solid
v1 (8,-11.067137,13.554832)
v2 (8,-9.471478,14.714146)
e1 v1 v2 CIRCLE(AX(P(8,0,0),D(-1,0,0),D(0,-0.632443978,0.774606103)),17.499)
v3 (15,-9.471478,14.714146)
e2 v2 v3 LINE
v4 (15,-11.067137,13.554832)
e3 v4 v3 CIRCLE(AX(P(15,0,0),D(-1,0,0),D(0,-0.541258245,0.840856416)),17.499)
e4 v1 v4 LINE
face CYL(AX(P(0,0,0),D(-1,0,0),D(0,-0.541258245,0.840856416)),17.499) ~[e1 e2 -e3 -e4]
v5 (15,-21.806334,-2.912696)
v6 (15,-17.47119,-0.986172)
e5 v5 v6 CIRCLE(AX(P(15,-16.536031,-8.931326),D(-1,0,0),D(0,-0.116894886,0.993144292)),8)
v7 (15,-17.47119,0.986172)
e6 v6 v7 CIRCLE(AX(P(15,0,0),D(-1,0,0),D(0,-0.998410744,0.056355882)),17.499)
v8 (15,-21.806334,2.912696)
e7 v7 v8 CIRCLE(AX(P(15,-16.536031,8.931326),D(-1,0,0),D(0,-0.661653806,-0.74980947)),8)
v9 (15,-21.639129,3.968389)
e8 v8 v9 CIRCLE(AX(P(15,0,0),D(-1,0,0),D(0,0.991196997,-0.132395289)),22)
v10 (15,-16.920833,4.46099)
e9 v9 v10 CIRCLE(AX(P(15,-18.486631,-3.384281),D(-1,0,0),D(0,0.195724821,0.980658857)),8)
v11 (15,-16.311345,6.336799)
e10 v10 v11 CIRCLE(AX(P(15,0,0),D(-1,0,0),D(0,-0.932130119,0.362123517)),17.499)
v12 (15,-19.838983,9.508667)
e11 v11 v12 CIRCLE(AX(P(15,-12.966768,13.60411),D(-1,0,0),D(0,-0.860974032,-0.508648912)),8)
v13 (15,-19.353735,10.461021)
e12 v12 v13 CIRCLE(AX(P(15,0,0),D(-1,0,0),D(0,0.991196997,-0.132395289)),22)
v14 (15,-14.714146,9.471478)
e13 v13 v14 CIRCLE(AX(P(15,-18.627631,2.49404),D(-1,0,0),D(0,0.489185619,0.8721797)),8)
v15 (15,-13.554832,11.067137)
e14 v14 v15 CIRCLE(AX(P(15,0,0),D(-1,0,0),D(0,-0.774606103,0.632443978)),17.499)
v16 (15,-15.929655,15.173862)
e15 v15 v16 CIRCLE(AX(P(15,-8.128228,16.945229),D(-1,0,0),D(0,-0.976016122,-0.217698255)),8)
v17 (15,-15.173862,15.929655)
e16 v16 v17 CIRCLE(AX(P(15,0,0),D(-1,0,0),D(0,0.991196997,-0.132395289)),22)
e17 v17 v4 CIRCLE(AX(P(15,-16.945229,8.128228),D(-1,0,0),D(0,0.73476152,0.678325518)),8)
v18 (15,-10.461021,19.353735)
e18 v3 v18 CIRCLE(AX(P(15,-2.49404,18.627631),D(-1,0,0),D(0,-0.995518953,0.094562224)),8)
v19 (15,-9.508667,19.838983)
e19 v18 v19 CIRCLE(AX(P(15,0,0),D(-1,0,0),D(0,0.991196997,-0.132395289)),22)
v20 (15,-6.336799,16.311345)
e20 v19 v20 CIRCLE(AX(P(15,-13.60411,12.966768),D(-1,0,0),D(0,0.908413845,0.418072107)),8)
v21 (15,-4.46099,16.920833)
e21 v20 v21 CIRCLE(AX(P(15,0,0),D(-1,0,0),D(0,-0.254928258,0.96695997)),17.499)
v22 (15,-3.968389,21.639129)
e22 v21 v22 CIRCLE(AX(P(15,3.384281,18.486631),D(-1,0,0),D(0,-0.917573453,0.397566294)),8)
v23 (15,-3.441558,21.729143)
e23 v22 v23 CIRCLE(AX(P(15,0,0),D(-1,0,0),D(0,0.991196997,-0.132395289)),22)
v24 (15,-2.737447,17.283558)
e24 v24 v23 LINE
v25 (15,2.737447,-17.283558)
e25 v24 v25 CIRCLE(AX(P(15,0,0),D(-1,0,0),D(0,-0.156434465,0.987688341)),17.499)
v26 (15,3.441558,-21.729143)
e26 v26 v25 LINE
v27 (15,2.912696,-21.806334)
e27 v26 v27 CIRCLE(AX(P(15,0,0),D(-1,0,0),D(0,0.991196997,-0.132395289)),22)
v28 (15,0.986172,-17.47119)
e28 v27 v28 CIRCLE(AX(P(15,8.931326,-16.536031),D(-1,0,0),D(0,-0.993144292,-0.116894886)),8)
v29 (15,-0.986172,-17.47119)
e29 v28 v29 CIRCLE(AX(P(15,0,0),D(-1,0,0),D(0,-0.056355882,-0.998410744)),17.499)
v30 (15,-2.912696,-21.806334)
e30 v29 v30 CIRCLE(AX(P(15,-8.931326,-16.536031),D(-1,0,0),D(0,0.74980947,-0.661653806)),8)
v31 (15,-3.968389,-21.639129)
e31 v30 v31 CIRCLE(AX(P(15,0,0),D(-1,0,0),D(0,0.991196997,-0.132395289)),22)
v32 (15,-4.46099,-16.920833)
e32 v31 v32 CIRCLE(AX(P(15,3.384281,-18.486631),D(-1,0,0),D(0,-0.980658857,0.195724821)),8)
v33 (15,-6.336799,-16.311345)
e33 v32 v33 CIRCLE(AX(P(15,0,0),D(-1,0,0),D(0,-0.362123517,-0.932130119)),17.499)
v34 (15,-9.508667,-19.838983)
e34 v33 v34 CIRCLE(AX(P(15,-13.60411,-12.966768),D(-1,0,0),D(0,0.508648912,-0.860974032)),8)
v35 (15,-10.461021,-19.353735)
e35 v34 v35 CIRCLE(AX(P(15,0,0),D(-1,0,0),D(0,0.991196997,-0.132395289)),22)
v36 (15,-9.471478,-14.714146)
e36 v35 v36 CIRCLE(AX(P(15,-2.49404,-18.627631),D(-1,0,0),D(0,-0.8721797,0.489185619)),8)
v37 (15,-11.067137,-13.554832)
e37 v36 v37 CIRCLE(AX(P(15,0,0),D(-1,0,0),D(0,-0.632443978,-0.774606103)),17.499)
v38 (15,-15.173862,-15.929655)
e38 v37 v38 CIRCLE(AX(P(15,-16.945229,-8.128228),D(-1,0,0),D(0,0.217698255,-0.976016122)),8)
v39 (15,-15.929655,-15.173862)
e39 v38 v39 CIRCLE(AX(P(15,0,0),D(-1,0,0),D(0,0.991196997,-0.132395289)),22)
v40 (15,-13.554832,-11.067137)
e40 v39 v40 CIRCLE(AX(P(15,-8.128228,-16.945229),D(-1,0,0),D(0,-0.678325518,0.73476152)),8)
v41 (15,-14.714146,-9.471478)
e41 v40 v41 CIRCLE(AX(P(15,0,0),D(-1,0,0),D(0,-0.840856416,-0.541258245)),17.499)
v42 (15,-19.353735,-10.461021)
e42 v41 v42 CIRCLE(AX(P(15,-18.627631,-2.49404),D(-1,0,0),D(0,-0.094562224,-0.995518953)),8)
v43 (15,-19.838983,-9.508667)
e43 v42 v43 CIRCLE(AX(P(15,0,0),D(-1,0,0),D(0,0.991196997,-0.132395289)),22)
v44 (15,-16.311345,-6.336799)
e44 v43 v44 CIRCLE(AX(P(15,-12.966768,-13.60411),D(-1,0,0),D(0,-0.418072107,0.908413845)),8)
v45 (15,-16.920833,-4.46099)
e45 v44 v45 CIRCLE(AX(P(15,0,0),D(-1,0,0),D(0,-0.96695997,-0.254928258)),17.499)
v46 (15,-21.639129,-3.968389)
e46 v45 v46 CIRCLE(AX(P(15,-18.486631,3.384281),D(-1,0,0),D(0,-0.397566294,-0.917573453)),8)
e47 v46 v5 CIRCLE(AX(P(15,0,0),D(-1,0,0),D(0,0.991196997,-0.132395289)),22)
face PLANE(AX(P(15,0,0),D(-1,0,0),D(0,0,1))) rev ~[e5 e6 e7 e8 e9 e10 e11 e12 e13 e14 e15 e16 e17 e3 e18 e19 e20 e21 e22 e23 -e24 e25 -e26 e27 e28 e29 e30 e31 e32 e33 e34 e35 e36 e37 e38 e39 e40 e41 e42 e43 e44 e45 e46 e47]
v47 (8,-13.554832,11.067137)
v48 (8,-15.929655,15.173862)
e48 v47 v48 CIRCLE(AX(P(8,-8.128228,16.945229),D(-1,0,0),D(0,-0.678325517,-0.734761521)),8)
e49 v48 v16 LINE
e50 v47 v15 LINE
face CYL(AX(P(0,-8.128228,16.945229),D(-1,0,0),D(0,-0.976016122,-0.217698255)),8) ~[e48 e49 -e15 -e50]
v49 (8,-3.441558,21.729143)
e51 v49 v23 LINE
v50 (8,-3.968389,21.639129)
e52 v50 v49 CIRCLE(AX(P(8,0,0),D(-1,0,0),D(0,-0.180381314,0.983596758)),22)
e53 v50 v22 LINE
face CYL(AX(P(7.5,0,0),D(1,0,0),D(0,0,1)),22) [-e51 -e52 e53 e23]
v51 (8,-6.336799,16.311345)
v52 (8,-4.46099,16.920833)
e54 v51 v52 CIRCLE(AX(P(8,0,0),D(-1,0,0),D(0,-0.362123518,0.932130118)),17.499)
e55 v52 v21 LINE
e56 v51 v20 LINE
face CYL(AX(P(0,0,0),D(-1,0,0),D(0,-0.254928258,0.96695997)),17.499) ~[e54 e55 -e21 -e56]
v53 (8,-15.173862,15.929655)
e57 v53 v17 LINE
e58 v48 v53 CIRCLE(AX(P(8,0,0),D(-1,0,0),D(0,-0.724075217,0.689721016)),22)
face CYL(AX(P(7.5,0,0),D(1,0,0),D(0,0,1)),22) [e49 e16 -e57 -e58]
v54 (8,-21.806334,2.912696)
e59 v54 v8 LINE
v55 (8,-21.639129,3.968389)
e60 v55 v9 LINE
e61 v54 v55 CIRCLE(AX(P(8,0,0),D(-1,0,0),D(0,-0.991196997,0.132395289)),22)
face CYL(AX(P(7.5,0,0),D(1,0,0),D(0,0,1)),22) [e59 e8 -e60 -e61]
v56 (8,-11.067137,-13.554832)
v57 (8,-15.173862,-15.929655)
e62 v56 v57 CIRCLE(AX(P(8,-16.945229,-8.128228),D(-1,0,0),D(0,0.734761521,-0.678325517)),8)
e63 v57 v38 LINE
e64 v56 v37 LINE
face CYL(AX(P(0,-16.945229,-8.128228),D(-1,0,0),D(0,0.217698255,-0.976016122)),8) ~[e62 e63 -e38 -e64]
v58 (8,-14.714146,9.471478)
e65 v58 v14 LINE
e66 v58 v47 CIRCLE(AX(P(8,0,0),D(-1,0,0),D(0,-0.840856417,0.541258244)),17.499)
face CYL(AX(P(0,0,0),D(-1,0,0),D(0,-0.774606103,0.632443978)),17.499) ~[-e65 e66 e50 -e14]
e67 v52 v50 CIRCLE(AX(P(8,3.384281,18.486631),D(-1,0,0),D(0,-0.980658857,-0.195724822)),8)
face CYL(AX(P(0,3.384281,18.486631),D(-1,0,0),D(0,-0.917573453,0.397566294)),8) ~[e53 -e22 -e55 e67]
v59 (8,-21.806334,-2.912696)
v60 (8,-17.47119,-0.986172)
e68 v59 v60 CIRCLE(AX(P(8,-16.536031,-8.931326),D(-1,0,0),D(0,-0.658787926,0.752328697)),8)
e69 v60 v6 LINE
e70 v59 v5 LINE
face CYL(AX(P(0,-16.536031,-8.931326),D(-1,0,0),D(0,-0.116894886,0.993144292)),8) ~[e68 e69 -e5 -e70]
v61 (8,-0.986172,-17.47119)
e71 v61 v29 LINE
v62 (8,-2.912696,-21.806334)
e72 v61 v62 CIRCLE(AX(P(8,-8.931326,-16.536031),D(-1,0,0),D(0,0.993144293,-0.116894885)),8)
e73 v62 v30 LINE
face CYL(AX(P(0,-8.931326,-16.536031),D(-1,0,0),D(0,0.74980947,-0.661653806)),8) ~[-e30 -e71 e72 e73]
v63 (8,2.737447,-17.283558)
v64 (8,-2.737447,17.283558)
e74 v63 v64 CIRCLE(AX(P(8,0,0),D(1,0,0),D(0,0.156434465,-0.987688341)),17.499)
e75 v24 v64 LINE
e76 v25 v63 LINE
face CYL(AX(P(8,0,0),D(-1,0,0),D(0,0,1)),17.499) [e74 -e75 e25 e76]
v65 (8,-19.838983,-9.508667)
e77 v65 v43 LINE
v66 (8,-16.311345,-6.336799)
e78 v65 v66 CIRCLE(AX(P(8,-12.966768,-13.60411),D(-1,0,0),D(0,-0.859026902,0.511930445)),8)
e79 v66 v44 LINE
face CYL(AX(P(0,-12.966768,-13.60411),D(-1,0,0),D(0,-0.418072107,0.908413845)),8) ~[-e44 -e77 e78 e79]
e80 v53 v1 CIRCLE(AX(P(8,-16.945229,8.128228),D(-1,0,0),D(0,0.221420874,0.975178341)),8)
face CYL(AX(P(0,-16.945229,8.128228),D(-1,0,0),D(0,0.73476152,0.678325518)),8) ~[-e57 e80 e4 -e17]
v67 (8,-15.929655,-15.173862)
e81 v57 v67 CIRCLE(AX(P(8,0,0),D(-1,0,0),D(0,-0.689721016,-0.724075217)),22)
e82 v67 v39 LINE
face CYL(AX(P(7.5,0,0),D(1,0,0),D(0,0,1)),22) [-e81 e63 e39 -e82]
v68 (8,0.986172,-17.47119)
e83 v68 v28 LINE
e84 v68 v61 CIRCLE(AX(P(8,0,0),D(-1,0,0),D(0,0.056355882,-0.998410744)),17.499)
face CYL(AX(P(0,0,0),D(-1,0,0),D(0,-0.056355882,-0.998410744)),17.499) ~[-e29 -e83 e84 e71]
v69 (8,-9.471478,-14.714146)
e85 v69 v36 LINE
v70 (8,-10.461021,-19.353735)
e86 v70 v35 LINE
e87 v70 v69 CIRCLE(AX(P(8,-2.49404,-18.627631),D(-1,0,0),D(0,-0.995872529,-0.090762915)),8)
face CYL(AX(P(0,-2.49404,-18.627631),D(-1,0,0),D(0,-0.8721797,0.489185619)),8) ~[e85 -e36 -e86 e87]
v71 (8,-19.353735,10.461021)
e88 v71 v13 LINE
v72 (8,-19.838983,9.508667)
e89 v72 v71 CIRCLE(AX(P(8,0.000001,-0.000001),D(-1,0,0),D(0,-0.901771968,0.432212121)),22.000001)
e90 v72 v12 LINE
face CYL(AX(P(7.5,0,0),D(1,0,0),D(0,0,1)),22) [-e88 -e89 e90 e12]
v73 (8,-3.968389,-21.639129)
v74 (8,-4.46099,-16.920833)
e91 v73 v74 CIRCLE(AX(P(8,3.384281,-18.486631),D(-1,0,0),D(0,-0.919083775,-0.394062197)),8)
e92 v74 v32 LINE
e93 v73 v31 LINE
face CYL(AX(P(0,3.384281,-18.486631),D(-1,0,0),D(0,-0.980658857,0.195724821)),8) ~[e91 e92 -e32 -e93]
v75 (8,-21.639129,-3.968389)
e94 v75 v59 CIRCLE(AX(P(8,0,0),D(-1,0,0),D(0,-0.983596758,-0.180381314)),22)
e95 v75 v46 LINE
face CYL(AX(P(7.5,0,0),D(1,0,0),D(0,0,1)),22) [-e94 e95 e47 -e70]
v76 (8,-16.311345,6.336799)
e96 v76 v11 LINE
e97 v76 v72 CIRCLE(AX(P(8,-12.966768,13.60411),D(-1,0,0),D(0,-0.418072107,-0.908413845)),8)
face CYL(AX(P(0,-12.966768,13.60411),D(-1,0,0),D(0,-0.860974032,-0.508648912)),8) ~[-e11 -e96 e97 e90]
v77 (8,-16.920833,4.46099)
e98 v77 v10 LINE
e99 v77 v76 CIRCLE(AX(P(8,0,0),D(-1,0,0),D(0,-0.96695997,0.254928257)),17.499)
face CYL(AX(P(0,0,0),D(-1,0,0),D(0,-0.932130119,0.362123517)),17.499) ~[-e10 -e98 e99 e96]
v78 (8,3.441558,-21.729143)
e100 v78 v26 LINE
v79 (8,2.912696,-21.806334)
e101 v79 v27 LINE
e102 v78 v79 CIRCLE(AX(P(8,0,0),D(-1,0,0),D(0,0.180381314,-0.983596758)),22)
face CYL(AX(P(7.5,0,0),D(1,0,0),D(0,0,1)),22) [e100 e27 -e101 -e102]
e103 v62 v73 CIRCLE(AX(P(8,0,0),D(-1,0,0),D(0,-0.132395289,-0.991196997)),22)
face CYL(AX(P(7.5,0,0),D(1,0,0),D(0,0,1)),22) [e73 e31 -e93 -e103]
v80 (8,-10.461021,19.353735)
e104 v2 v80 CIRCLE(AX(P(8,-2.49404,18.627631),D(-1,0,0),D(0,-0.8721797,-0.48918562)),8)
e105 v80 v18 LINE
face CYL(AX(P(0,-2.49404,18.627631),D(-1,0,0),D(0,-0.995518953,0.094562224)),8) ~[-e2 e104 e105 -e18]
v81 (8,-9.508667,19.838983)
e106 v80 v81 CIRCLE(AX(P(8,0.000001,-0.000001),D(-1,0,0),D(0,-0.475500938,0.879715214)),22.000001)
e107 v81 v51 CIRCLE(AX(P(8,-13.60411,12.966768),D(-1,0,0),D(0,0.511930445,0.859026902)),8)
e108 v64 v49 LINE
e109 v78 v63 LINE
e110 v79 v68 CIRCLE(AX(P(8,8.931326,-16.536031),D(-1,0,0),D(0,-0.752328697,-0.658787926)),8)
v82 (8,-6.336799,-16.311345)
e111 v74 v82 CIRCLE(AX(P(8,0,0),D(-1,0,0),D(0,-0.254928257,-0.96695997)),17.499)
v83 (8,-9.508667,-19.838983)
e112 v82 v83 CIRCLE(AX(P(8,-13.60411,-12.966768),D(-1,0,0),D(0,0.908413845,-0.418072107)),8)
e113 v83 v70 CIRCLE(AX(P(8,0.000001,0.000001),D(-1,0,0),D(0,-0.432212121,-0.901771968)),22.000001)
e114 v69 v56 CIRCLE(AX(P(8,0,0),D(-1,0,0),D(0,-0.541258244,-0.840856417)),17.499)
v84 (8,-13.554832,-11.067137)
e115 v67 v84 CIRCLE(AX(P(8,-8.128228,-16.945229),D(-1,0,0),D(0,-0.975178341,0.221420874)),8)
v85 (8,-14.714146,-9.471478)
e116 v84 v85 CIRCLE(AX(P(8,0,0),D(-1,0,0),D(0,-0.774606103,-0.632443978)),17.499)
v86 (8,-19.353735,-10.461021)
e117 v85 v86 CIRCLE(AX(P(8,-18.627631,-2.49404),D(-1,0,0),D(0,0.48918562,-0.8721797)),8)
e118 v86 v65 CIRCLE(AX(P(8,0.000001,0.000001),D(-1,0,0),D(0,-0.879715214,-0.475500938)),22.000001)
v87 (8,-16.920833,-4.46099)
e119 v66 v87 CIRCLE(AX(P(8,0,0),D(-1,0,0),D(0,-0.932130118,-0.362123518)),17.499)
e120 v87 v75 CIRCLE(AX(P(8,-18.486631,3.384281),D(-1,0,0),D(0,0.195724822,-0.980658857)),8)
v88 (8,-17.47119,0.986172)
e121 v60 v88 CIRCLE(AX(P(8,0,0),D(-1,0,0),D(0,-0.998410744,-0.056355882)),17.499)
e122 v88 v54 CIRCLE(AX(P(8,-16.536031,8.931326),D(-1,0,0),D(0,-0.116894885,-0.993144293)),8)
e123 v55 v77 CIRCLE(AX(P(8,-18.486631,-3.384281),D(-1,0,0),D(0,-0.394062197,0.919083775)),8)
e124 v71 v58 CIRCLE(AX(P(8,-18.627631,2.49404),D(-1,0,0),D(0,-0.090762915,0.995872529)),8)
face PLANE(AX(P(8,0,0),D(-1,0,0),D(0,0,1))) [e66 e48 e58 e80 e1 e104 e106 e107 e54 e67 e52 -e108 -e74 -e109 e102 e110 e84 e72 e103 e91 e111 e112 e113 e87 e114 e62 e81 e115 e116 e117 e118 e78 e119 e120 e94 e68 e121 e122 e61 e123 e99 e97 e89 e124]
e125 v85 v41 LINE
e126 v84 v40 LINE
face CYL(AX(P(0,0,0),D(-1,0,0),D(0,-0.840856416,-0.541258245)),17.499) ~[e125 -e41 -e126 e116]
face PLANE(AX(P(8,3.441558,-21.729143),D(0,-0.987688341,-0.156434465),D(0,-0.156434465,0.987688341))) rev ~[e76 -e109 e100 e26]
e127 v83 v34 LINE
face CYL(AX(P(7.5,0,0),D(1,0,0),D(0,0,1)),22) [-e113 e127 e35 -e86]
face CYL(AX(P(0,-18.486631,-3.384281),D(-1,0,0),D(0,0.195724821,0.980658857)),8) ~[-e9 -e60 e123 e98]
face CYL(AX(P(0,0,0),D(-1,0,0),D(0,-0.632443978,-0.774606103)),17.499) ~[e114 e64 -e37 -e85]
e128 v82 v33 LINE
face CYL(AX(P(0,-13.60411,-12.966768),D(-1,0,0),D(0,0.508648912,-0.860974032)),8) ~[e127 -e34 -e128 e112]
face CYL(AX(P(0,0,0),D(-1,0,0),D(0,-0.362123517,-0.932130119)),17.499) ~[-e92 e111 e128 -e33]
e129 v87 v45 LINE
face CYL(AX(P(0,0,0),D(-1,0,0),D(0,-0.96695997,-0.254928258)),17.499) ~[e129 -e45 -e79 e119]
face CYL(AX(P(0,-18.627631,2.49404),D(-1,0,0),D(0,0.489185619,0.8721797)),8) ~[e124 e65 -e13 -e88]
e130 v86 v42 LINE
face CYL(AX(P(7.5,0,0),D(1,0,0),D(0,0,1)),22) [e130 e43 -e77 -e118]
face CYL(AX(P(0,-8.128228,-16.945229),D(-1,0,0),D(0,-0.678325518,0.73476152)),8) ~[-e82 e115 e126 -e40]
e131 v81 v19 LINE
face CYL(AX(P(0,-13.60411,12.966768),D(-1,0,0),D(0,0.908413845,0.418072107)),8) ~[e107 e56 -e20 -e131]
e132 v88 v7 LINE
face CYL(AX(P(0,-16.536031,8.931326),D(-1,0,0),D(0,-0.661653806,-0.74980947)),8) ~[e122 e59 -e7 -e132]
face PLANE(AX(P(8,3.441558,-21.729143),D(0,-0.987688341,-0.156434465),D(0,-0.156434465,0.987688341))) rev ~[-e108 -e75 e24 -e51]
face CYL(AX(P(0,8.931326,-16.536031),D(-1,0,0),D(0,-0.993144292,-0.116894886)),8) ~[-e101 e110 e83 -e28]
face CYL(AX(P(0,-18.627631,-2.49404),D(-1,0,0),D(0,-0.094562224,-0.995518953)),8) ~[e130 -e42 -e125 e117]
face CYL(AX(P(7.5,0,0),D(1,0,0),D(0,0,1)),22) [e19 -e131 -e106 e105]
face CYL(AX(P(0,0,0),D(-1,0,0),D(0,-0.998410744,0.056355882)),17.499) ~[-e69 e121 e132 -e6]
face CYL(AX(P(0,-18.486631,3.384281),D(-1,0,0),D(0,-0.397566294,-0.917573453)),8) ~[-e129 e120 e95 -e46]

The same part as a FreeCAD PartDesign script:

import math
import FreeCAD as App
import Part
import Sketcher

V = App.Vector
Q = App.Units.Quantity


def add_polygon(sketch, points):
    """Adds a closed chain of lines whose ends are joined by coincident constraints."""
    first, n = sketch.GeometryCount, len(points)
    for a, b in zip(points, points[1:] + points[:1]):
        sketch.addGeometry(Part.LineSegment(App.Vector(*a, 0), App.Vector(*b, 0)), False)
    for i in range(n):
        sketch.addConstraint(Sketcher.Constraint("Coincident", first + i, 2, first + (i + 1) % n, 1))

doc = App.newDocument("Part")
params = doc.addObject("Spreadsheet::Sheet", "Params")
for row, (alias, value) in enumerate([
    ("sketch1_width", "15 mm"),
    ("sketch1_height", "22 mm"),
    ("revolution_angle", "360 deg"),
    ("sketch2_radius", "8 mm"),
    ("sketch3_diameter", "1 mm"),
    ("pocket2_length", "100.000102 mm"),
    ("sketch4_diameter", "22.2 mm"),
    ("pocket3_length", "16 mm"),
    ("sketch5_radius", "8 mm"),
    ("sketch5_radius2", "22 mm"),
    ("pocket4_length", "8 mm"),
    ("sketch6_diameter", "22.2 mm"),
    ("pad1_length", "7 mm"),
    ("sketch7_length", "44 mm"),
    ("pocket5_length", "7 mm"),
    ("pad2_length", "7 mm"),
], start=1):
    params.set(f"A{row}", alias)
    params.set(f"B{row}", "=" + value)
    params.setAlias(f"B{row}", alias)

body = doc.addObject("PartDesign::Body", "Body")

# Sketch on XZ plane
sketch1 = doc.addObject("Sketcher::SketchObject", "Sketch")
body.addObject(sketch1)
sketch1.AttachmentSupport = (doc.XZ_Plane, [""])
sketch1.MapMode = "FlatFace"
add_polygon(sketch1, [(0, -22), (0, 0), (15, 0), (15, -22)])  # lines 0-3
sketch1.addConstraint([
    Sketcher.Constraint("Vertical", 0),
    Sketcher.Constraint("Horizontal", 1),
    Sketcher.Constraint("Vertical", 2),
    Sketcher.Constraint("Horizontal", 3),
    Sketcher.Constraint("Coincident", 0, 2, -1, 1),
    Sketcher.Constraint("DistanceX", 1, 1, 1, 2, 15.0),
    Sketcher.Constraint("DistanceY", 0, 1, 0, 2, 22.0),
])
sketch1.setExpression("Constraints[9]", "Params.sketch1_width")
sketch1.setExpression("Constraints[10]", "Params.sketch1_height")
revolution = doc.addObject("PartDesign::Revolution", "Revolution")
body.addObject(revolution)
revolution.Profile = sketch1
revolution.ReferenceAxis = (sketch1, ["H_Axis"])
revolution.setExpression("Angle", "Params.revolution_angle")

# Sketch on YZ plane
sketch2 = doc.addObject("Sketcher::SketchObject", "Sketch001")
body.addObject(sketch2)
sketch2.AttachmentSupport = (doc.YZ_Plane, [""])
sketch2.MapMode = "FlatFace"
sketch2.addGeometry([
    Part.ArcOfCircle(Part.Circle(V(0, 0, 0), V(0, 0, 1), 17.5), math.radians(-3.23), math.radians(3.23)),
    Part.ArcOfCircle(Part.Circle(V(16.5, -8.9, 0), V(0, 0, 1), 8), math.radians(49), math.radians(83)),
    Part.ArcOfCircle(Part.Circle(V(0, 0, 0), V(0, 0, 1), 22), math.radians(-7.65), math.radians(7.65)),
    Part.ArcOfCircle(Part.Circle(V(16.5, 8.9, 0), V(0, 0, 1), 8), math.radians(-83), math.radians(-49)),
], False)
sketch2.addConstraint([
    Sketcher.Constraint("Coincident", 0, 1, 1, 2),
    Sketcher.Constraint("Coincident", 1, 1, 2, 1),
    Sketcher.Constraint("Coincident", 2, 2, 3, 2),
    Sketcher.Constraint("Coincident", 3, 1, 0, 2),
    Sketcher.Constraint("Coincident", 0, 3, -1, 1),
    Sketcher.Constraint("Coincident", 2, 3, -1, 1),
    Sketcher.Constraint("Equal", 1, 3),
    Sketcher.Constraint("Symmetric", 1, 3, 3, 3, -1),
    Sketcher.Constraint("Radius", 1, 8.0),
    Sketcher.Constraint("Radius", 0, 17.499),
    Sketcher.Constraint("Radius", 2, 22.0254),
    Sketcher.Constraint("DistanceY", 1, 1, 2, 2, 5.8657),
    Sketcher.Constraint("DistanceX", -1, 1, 1, 3, 16.536031),
])
sketch2.setExpression("Constraints[8]", "Params.sketch2_radius")
pocket1 = doc.addObject("PartDesign::Pocket", "Pocket")
body.addObject(pocket1)
pocket1.Profile = sketch2
pocket1.Type = "ThroughAll"
pocket1.Reversed = True
doc.recompute()

polarpattern = doc.addObject("PartDesign::PolarPattern", "PolarPattern")
body.addObject(polarpattern)
polarpattern.Originals = [pocket1]
polarpattern.Axis = (doc.X_Axis, [""])
polarpattern.Angle = 360
polarpattern.Occurrences = 20
body.Tip = polarpattern

# Sketch on YZ plane
sketch3 = doc.addObject("Sketcher::SketchObject", "Sketch002")
body.addObject(sketch3)
sketch3.AttachmentSupport = (doc.YZ_Plane, [""])
sketch3.MapMode = "FlatFace"
sketch3.addGeometry(Part.Circle(V(0, 0, 0), V(0, 0, 1), 0.5), False)
sketch3.addConstraint([
    Sketcher.Constraint("Coincident", 0, 3, -1, 1),
    Sketcher.Constraint("Diameter", 0, 1.0),
])
sketch3.setExpression("Constraints[1]", "Params.sketch3_diameter")
pocket2 = doc.addObject("PartDesign::Pocket", "Pocket001")
body.addObject(pocket2)
pocket2.Profile = sketch3
pocket2.setExpression("Length", "Params.pocket2_length")
pocket2.Midplane = True

# Sketch on YZ plane
sketch4 = doc.addObject("Sketcher::SketchObject", "Sketch003")
body.addObject(sketch4)
sketch4.AttachmentSupport = (doc.YZ_Plane, [""])
sketch4.MapMode = "FlatFace"
sketch4.addGeometry(Part.Circle(V(0, 0, 0), V(0, 0, 1), 11), False)
sketch4.addConstraint([
    Sketcher.Constraint("Coincident", 0, 3, -1, 1),
    Sketcher.Constraint("Diameter", 0, 22.2),
])
sketch4.setExpression("Constraints[1]", "Params.sketch4_diameter")
pocket3 = doc.addObject("PartDesign::Pocket", "Pocket002")
body.addObject(pocket3)
pocket3.Profile = sketch4
pocket3.setExpression("Length", "Params.pocket3_length")
pocket3.Reversed = True

# Sketch on YZ plane
sketch5 = doc.addObject("Sketcher::SketchObject", "Sketch004")
body.addObject(sketch5)
sketch5.AttachmentSupport = (doc.YZ_Plane, [""])
sketch5.MapMode = "FlatFace"
sketch5.addGeometry([
    Part.ArcOfCircle(Part.Circle(V(8.9, 16.5, 0), V(0, 0, 1), 8), math.radians(139), math.radians(173)),  # 0
    Part.ArcOfCircle(Part.Circle(V(0, 0, 0), V(0, 0, 1), 22), math.radians(79.61), math.radians(82.39)),  # 1
    Part.ArcOfCircle(Part.Circle(V(-3.4, 18.5, 0), V(0, 0, 1), 8), math.radians(-11), math.radians(23)),  # 2
    Part.ArcOfCircle(Part.Circle(V(0, 0, 0), V(0, 0, 1), 17.5), math.radians(68.77), math.radians(75.23)),  # 3
    Part.ArcOfCircle(Part.Circle(V(13.6, 13, 0), V(0, 0, 1), 8), math.radians(121), math.radians(155)),  # 4
    Part.ArcOfCircle(Part.Circle(V(0, 0, 0), V(0, 0, 1), 22), math.radians(61.61), math.radians(64.39)),  # 5
    Part.ArcOfCircle(Part.Circle(V(2.5, 18.6, 0), V(0, 0, 1), 8), math.radians(-29), math.radians(5)),  # 6
    Part.ArcOfCircle(Part.Circle(V(0, 0, 0), V(0, 0, 1), 17.5), math.radians(50.77), math.radians(57.23)),  # 7
    Part.ArcOfCircle(Part.Circle(V(16.9, 8.1, 0), V(0, 0, 1), 8), math.radians(103), math.radians(137)),  # 8
    Part.ArcOfCircle(Part.Circle(V(0, 0, 0), V(0, 0, 1), 22), math.radians(43.61), math.radians(46.39)),  # 9
    Part.ArcOfCircle(Part.Circle(V(8.1, 16.9, 0), V(0, 0, 1), 8), math.radians(-47), math.radians(-13)),  # 10
    Part.ArcOfCircle(Part.Circle(V(0, 0, 0), V(0, 0, 1), 17.5), math.radians(32.77), math.radians(39.23)),  # 11
    Part.ArcOfCircle(Part.Circle(V(18.6, 2.5, 0), V(0, 0, 1), 8), math.radians(85), math.radians(119)),  # 12
    Part.ArcOfCircle(Part.Circle(V(0, 0, 0), V(0, 0, 1), 22), math.radians(25.61), math.radians(28.39)),  # 13
    Part.ArcOfCircle(Part.Circle(V(13, 13.6, 0), V(0, 0, 1), 8), math.radians(-65), math.radians(-31)),  # 14
    Part.ArcOfCircle(Part.Circle(V(0, 0, 0), V(0, 0, 1), 17.5), math.radians(14.77), math.radians(21.23)),  # 15
    Part.ArcOfCircle(Part.Circle(V(18.5, -3.4, 0), V(0, 0, 1), 8), math.radians(67), math.radians(101)),  # 16
    Part.ArcOfCircle(Part.Circle(V(0, 0, 0), V(0, 0, 1), 22), math.radians(7.61), math.radians(10.39)),  # 17
    Part.ArcOfCircle(Part.Circle(V(16.5, 8.9, 0), V(0, 0, 1), 8), math.radians(-83), math.radians(-49)),  # 18
    Part.ArcOfCircle(Part.Circle(V(0, 0, 0), V(0, 0, 1), 17.5), math.radians(-3.23), math.radians(3.23)),  # 19
    Part.ArcOfCircle(Part.Circle(V(16.5, -8.9, 0), V(0, 0, 1), 8), math.radians(49), math.radians(83)),  # 20
    Part.ArcOfCircle(Part.Circle(V(0, 0, 0), V(0, 0, 1), 22), math.radians(-10.39), math.radians(-7.61)),  # 21
    Part.ArcOfCircle(Part.Circle(V(18.5, 3.4, 0), V(0, 0, 1), 8), math.radians(-101), math.radians(-67)),  # 22
    Part.ArcOfCircle(Part.Circle(V(0, 0, 0), V(0, 0, 1), 17.5), math.radians(-21.23), math.radians(-14.77)),  # 23
    Part.ArcOfCircle(Part.Circle(V(13, -13.6, 0), V(0, 0, 1), 8), math.radians(31), math.radians(65)),  # 24
    Part.ArcOfCircle(Part.Circle(V(0, 0, 0), V(0, 0, 1), 22), math.radians(-28.39), math.radians(-25.61)),  # 25
    Part.ArcOfCircle(Part.Circle(V(18.6, -2.5, 0), V(0, 0, 1), 8), math.radians(-119), math.radians(-85)),  # 26
    Part.ArcOfCircle(Part.Circle(V(0, 0, 0), V(0, 0, 1), 17.5), math.radians(-39.23), math.radians(-32.77)),  # 27
    Part.ArcOfCircle(Part.Circle(V(8.1, -16.9, 0), V(0, 0, 1), 8), math.radians(13), math.radians(47)),  # 28
    Part.ArcOfCircle(Part.Circle(V(0, 0, 0), V(0, 0, 1), 22), math.radians(-46.39), math.radians(-43.61)),  # 29
    Part.ArcOfCircle(Part.Circle(V(16.9, -8.1, 0), V(0, 0, 1), 8), math.radians(-137), math.radians(-103)),  # 30
    Part.ArcOfCircle(Part.Circle(V(0, 0, 0), V(0, 0, 1), 17.5), math.radians(-57.23), math.radians(-50.77)),  # 31
    Part.ArcOfCircle(Part.Circle(V(2.5, -18.6, 0), V(0, 0, 1), 8), math.radians(-5), math.radians(29)),  # 32
    Part.ArcOfCircle(Part.Circle(V(0, 0, 0), V(0, 0, 1), 22), math.radians(-64.39), math.radians(-61.61)),  # 33
    Part.ArcOfCircle(Part.Circle(V(13.6, -13, 0), V(0, 0, 1), 8), math.radians(-155), math.radians(-121)),  # 34
    Part.ArcOfCircle(Part.Circle(V(0, 0, 0), V(0, 0, 1), 17.5), math.radians(-75.23), math.radians(-68.77)),  # 35
    Part.ArcOfCircle(Part.Circle(V(-3.4, -18.5, 0), V(0, 0, 1), 8), math.radians(-23), math.radians(11)),  # 36
    Part.ArcOfCircle(Part.Circle(V(0, 0, 0), V(0, 0, 1), 22), math.radians(-82.39), math.radians(-79.61)),  # 37
    Part.ArcOfCircle(Part.Circle(V(8.9, -16.5, 0), V(0, 0, 1), 8), math.radians(-173), math.radians(-139)),  # 38
    Part.ArcOfCircle(Part.Circle(V(0, 0, 0), V(0, 0, 1), 17.5), math.radians(-93.23), math.radians(-86.77)),  # 39
    Part.ArcOfCircle(Part.Circle(V(-8.9, -16.5, 0), V(0, 0, 1), 8), math.radians(-41), math.radians(-7)),  # 40
    Part.ArcOfCircle(Part.Circle(V(0, 0, 0), V(0, 0, 1), 22), math.radians(-100.39), math.radians(-97.61)),  # 41
    Part.ArcOfCircle(Part.Circle(V(3.4, -18.5, 0), V(0, 0, 1), 8), math.radians(169), math.radians(203)),  # 42
    Part.ArcOfCircle(Part.Circle(V(0, 0, 0), V(0, 0, 1), 17.5), math.radians(-111.23), math.radians(-104.77)),  # 43
    Part.ArcOfCircle(Part.Circle(V(-13.6, -13, 0), V(0, 0, 1), 8), math.radians(-59), math.radians(-25)),  # 44
    Part.ArcOfCircle(Part.Circle(V(0, 0, 0), V(0, 0, 1), 22), math.radians(-118.39), math.radians(-115.61)),  # 45
    Part.ArcOfCircle(Part.Circle(V(-2.5, -18.6, 0), V(0, 0, 1), 8), math.radians(151), math.radians(185)),  # 46
    Part.ArcOfCircle(Part.Circle(V(0, 0, 0), V(0, 0, 1), 17.5), math.radians(-129.23), math.radians(-122.77)),  # 47
    Part.ArcOfCircle(Part.Circle(V(-16.9, -8.1, 0), V(0, 0, 1), 8), math.radians(-77), math.radians(-43)),  # 48
    Part.ArcOfCircle(Part.Circle(V(0, 0, 0), V(0, 0, 1), 22), math.radians(-136.39), math.radians(-133.61)),  # 49
    Part.ArcOfCircle(Part.Circle(V(-8.1, -16.9, 0), V(0, 0, 1), 8), math.radians(133), math.radians(167)),  # 50
    Part.ArcOfCircle(Part.Circle(V(0, 0, 0), V(0, 0, 1), 17.5), math.radians(-147.23), math.radians(-140.77)),  # 51
    Part.ArcOfCircle(Part.Circle(V(-18.6, -2.5, 0), V(0, 0, 1), 8), math.radians(-95), math.radians(-61)),  # 52
    Part.ArcOfCircle(Part.Circle(V(0, 0, 0), V(0, 0, 1), 22), math.radians(-154.39), math.radians(-151.61)),  # 53
    Part.ArcOfCircle(Part.Circle(V(-13, -13.6, 0), V(0, 0, 1), 8), math.radians(115), math.radians(149)),  # 54
    Part.ArcOfCircle(Part.Circle(V(0, 0, 0), V(0, 0, 1), 17.5), math.radians(-165.23), math.radians(-158.77)),  # 55
    Part.ArcOfCircle(Part.Circle(V(-18.5, 3.4, 0), V(0, 0, 1), 8), math.radians(-113), math.radians(-79)),  # 56
    Part.ArcOfCircle(Part.Circle(V(0, 0, 0), V(0, 0, 1), 22), math.radians(-172.39), math.radians(-169.61)),  # 57
    Part.ArcOfCircle(Part.Circle(V(-16.5, -8.9, 0), V(0, 0, 1), 8), math.radians(97), math.radians(131)),  # 58
    Part.ArcOfCircle(Part.Circle(V(0, 0, 0), V(0, 0, 1), 17.5), math.radians(176.77), math.radians(183.23)),  # 59
    Part.ArcOfCircle(Part.Circle(V(-16.5, 8.9, 0), V(0, 0, 1), 8), math.radians(-131), math.radians(-97)),  # 60
    Part.ArcOfCircle(Part.Circle(V(0, 0, 0), V(0, 0, 1), 22), math.radians(169.61), math.radians(172.39)),  # 61
    Part.ArcOfCircle(Part.Circle(V(-18.5, -3.4, 0), V(0, 0, 1), 8), math.radians(79), math.radians(113)),  # 62
    Part.ArcOfCircle(Part.Circle(V(0, 0, 0), V(0, 0, 1), 17.5), math.radians(158.77), math.radians(165.23)),  # 63
    Part.ArcOfCircle(Part.Circle(V(-13, 13.6, 0), V(0, 0, 1), 8), math.radians(-149), math.radians(-115)),  # 64
    Part.ArcOfCircle(Part.Circle(V(0, 0, 0), V(0, 0, 1), 22), math.radians(151.61), math.radians(154.39)),  # 65
    Part.ArcOfCircle(Part.Circle(V(-18.6, 2.5, 0), V(0, 0, 1), 8), math.radians(61), math.radians(95)),  # 66
    Part.ArcOfCircle(Part.Circle(V(0, 0, 0), V(0, 0, 1), 17.5), math.radians(140.77), math.radians(147.23)),  # 67
    Part.ArcOfCircle(Part.Circle(V(-8.1, 16.9, 0), V(0, 0, 1), 8), math.radians(-167), math.radians(-133)),  # 68
    Part.ArcOfCircle(Part.Circle(V(0, 0, 0), V(0, 0, 1), 22), math.radians(133.61), math.radians(136.39)),  # 69
    Part.ArcOfCircle(Part.Circle(V(-16.9, 8.1, 0), V(0, 0, 1), 8), math.radians(43), math.radians(77)),  # 70
    Part.ArcOfCircle(Part.Circle(V(0, 0, 0), V(0, 0, 1), 17.5), math.radians(122.77), math.radians(129.23)),  # 71
    Part.ArcOfCircle(Part.Circle(V(-2.5, 18.6, 0), V(0, 0, 1), 8), math.radians(175), math.radians(209)),  # 72
    Part.ArcOfCircle(Part.Circle(V(0, 0, 0), V(0, 0, 1), 22), math.radians(115.61), math.radians(118.39)),  # 73
    Part.ArcOfCircle(Part.Circle(V(-13.6, 13, 0), V(0, 0, 1), 8), math.radians(25), math.radians(59)),  # 74
    Part.ArcOfCircle(Part.Circle(V(0, 0, 0), V(0, 0, 1), 17.5), math.radians(104.77), math.radians(111.23)),  # 75
    Part.ArcOfCircle(Part.Circle(V(3.4, 18.5, 0), V(0, 0, 1), 8), math.radians(157), math.radians(191)),  # 76
    Part.ArcOfCircle(Part.Circle(V(0, 0, 0), V(0, 0, 1), 22), math.radians(97.61), math.radians(100.39)),  # 77
    Part.ArcOfCircle(Part.Circle(V(-8.9, 16.5, 0), V(0, 0, 1), 8), math.radians(7), math.radians(41)),  # 78
    Part.ArcOfCircle(Part.Circle(V(0, 0, 0), V(0, 0, 1), 17.5), math.radians(86.77), math.radians(93.23)),  # 79
], False)
sketch5.addConstraint([
    Sketcher.Constraint("Coincident", 0, 1, 1, 2),
    Sketcher.Constraint("Coincident", 1, 1, 2, 2),
    Sketcher.Constraint("Coincident", 2, 1, 3, 2),
    Sketcher.Constraint("Coincident", 3, 1, 4, 2),
    Sketcher.Constraint("Coincident", 4, 1, 5, 2),
    Sketcher.Constraint("Coincident", 5, 1, 6, 2),
    Sketcher.Constraint("Coincident", 6, 1, 7, 2),
    Sketcher.Constraint("Coincident", 7, 1, 8, 2),
    Sketcher.Constraint("Coincident", 8, 1, 9, 2),
    Sketcher.Constraint("Coincident", 9, 1, 10, 2),
    Sketcher.Constraint("Coincident", 10, 1, 11, 2),
    Sketcher.Constraint("Coincident", 11, 1, 12, 2),
    Sketcher.Constraint("Coincident", 12, 1, 13, 2),
    Sketcher.Constraint("Coincident", 13, 1, 14, 2),
    Sketcher.Constraint("Coincident", 14, 1, 15, 2),
    Sketcher.Constraint("Coincident", 15, 1, 16, 2),
    Sketcher.Constraint("Coincident", 16, 1, 17, 2),
    Sketcher.Constraint("Coincident", 17, 1, 18, 2),
    Sketcher.Constraint("Coincident", 18, 1, 19, 2),
    Sketcher.Constraint("Coincident", 19, 1, 20, 2),
    Sketcher.Constraint("Coincident", 20, 1, 21, 2),
    Sketcher.Constraint("Coincident", 21, 1, 22, 2),
    Sketcher.Constraint("Coincident", 22, 1, 23, 2),
    Sketcher.Constraint("Coincident", 23, 1, 24, 2),
    Sketcher.Constraint("Coincident", 24, 1, 25, 2),
    Sketcher.Constraint("Coincident", 25, 1, 26, 2),
    Sketcher.Constraint("Coincident", 26, 1, 27, 2),
    Sketcher.Constraint("Coincident", 27, 1, 28, 2),
    Sketcher.Constraint("Coincident", 28, 1, 29, 2),
    Sketcher.Constraint("Coincident", 29, 1, 30, 2),
    Sketcher.Constraint("Coincident", 30, 1, 31, 2),
    Sketcher.Constraint("Coincident", 31, 1, 32, 2),
    Sketcher.Constraint("Coincident", 32, 1, 33, 2),
    Sketcher.Constraint("Coincident", 33, 1, 34, 2),
    Sketcher.Constraint("Coincident", 34, 1, 35, 2),
    Sketcher.Constraint("Coincident", 35, 1, 36, 2),
    Sketcher.Constraint("Coincident", 36, 1, 37, 2),
    Sketcher.Constraint("Coincident", 37, 1, 38, 2),
    Sketcher.Constraint("Coincident", 38, 1, 39, 2),
    Sketcher.Constraint("Coincident", 39, 1, 40, 2),
    Sketcher.Constraint("Coincident", 40, 1, 41, 2),
    Sketcher.Constraint("Coincident", 41, 1, 42, 2),
    Sketcher.Constraint("Coincident", 42, 1, 43, 2),
    Sketcher.Constraint("Coincident", 43, 1, 44, 2),
    Sketcher.Constraint("Coincident", 44, 1, 45, 2),
    Sketcher.Constraint("Coincident", 45, 1, 46, 2),
    Sketcher.Constraint("Coincident", 46, 1, 47, 2),
    Sketcher.Constraint("Coincident", 47, 1, 48, 2),
    Sketcher.Constraint("Coincident", 48, 1, 49, 2),
    Sketcher.Constraint("Coincident", 49, 1, 50, 2),
    Sketcher.Constraint("Coincident", 50, 1, 51, 2),
    Sketcher.Constraint("Coincident", 51, 1, 52, 2),
    Sketcher.Constraint("Coincident", 52, 1, 53, 2),
    Sketcher.Constraint("Coincident", 53, 1, 54, 2),
    Sketcher.Constraint("Coincident", 54, 1, 55, 2),
    Sketcher.Constraint("Coincident", 55, 1, 56, 2),
    Sketcher.Constraint("Coincident", 56, 1, 57, 2),
    Sketcher.Constraint("Coincident", 57, 1, 58, 2),
    Sketcher.Constraint("Coincident", 58, 1, 59, 2),
    Sketcher.Constraint("Coincident", 59, 1, 60, 2),
    Sketcher.Constraint("Coincident", 60, 1, 61, 2),
    Sketcher.Constraint("Coincident", 61, 1, 62, 2),
    Sketcher.Constraint("Coincident", 62, 1, 63, 2),
    Sketcher.Constraint("Coincident", 63, 1, 64, 2),
    Sketcher.Constraint("Coincident", 64, 1, 65, 2),
    Sketcher.Constraint("Coincident", 65, 1, 66, 2),
    Sketcher.Constraint("Coincident", 66, 1, 67, 2),
    Sketcher.Constraint("Coincident", 67, 1, 68, 2),
    Sketcher.Constraint("Coincident", 68, 1, 69, 2),
    Sketcher.Constraint("Coincident", 69, 1, 70, 2),
    Sketcher.Constraint("Coincident", 70, 1, 71, 2),
    Sketcher.Constraint("Coincident", 71, 1, 72, 2),
    Sketcher.Constraint("Coincident", 72, 1, 73, 2),
    Sketcher.Constraint("Coincident", 73, 1, 74, 2),
    Sketcher.Constraint("Coincident", 74, 1, 75, 2),
    Sketcher.Constraint("Coincident", 75, 1, 76, 2),
    Sketcher.Constraint("Coincident", 76, 1, 77, 2),
    Sketcher.Constraint("Coincident", 77, 1, 78, 2),
    Sketcher.Constraint("Coincident", 78, 1, 79, 2),
    Sketcher.Constraint("Coincident", 79, 1, 0, 2),
    Sketcher.Constraint("Coincident", 1, 3, -1, 1),
    Sketcher.Constraint("Coincident", 3, 3, -1, 1),
    Sketcher.Constraint("Coincident", 5, 3, -1, 1),
    Sketcher.Constraint("Coincident", 7, 3, -1, 1),
    Sketcher.Constraint("Coincident", 9, 3, -1, 1),
    Sketcher.Constraint("Coincident", 11, 3, -1, 1),
    Sketcher.Constraint("Coincident", 13, 3, -1, 1),
    Sketcher.Constraint("Coincident", 15, 3, -1, 1),
    Sketcher.Constraint("Coincident", 17, 3, -1, 1),
    Sketcher.Constraint("Coincident", 19, 3, -1, 1),
    Sketcher.Constraint("Coincident", 21, 3, -1, 1),
    Sketcher.Constraint("Coincident", 23, 3, -1, 1),
    Sketcher.Constraint("Coincident", 25, 3, -1, 1),
    Sketcher.Constraint("Coincident", 27, 3, -1, 1),
    Sketcher.Constraint("Coincident", 29, 3, -1, 1),
    Sketcher.Constraint("Coincident", 31, 3, -1, 1),
    Sketcher.Constraint("Coincident", 33, 3, -1, 1),
    Sketcher.Constraint("Coincident", 35, 3, -1, 1),
    Sketcher.Constraint("Coincident", 37, 3, -1, 1),
    Sketcher.Constraint("Coincident", 39, 3, -1, 1),
    Sketcher.Constraint("Coincident", 41, 3, -1, 1),
    Sketcher.Constraint("Coincident", 43, 3, -1, 1),
    Sketcher.Constraint("Coincident", 45, 3, -1, 1),
    Sketcher.Constraint("Coincident", 47, 3, -1, 1),
    Sketcher.Constraint("Coincident", 49, 3, -1, 1),
    Sketcher.Constraint("Coincident", 51, 3, -1, 1),
    Sketcher.Constraint("Coincident", 53, 3, -1, 1),
    Sketcher.Constraint("Coincident", 55, 3, -1, 1),
    Sketcher.Constraint("Coincident", 57, 3, -1, 1),
    Sketcher.Constraint("Coincident", 59, 3, -1, 1),
    Sketcher.Constraint("Coincident", 61, 3, -1, 1),
    Sketcher.Constraint("Coincident", 63, 3, -1, 1),
    Sketcher.Constraint("Coincident", 65, 3, -1, 1),
    Sketcher.Constraint("Coincident", 67, 3, -1, 1),
    Sketcher.Constraint("Coincident", 69, 3, -1, 1),
    Sketcher.Constraint("Coincident", 71, 3, -1, 1),
    Sketcher.Constraint("Coincident", 73, 3, -1, 1),
    Sketcher.Constraint("Coincident", 75, 3, -1, 1),
    Sketcher.Constraint("Coincident", 77, 3, -1, 1),
    Sketcher.Constraint("Coincident", 79, 3, -1, 1),
    Sketcher.Constraint("Equal", 0, 2),
    Sketcher.Constraint("Equal", 2, 4),
    Sketcher.Constraint("Equal", 1, 5),
    Sketcher.Constraint("Equal", 4, 6),
    Sketcher.Constraint("Equal", 3, 7),
    Sketcher.Constraint("Equal", 6, 8),
    Sketcher.Constraint("Equal", 5, 9),
    Sketcher.Constraint("Equal", 8, 10),
    Sketcher.Constraint("Equal", 7, 11),
    Sketcher.Constraint("Equal", 10, 12),
    Sketcher.Constraint("Equal", 9, 13),
    Sketcher.Constraint("Equal", 12, 14),
    Sketcher.Constraint("Equal", 11, 15),
    Sketcher.Constraint("Equal", 14, 16),
    Sketcher.Constraint("Equal", 13, 17),
    Sketcher.Constraint("Equal", 16, 18),
    Sketcher.Constraint("Equal", 15, 19),
    Sketcher.Constraint("Equal", 18, 20),
    Sketcher.Constraint("Equal", 17, 21),
    Sketcher.Constraint("Equal", 20, 22),
    Sketcher.Constraint("Equal", 19, 23),
    Sketcher.Constraint("Equal", 22, 24),
    Sketcher.Constraint("Equal", 21, 25),
    Sketcher.Constraint("Equal", 24, 26),
    Sketcher.Constraint("Equal", 23, 27),
    Sketcher.Constraint("Equal", 26, 28),
    Sketcher.Constraint("Equal", 25, 29),
    Sketcher.Constraint("Equal", 28, 30),
    Sketcher.Constraint("Equal", 27, 31),
    Sketcher.Constraint("Equal", 30, 32),
    Sketcher.Constraint("Equal", 29, 33),
    Sketcher.Constraint("Equal", 32, 34),
    Sketcher.Constraint("Equal", 31, 35),
    Sketcher.Constraint("Equal", 34, 36),
    Sketcher.Constraint("Equal", 33, 37),
    Sketcher.Constraint("Equal", 36, 38),
    Sketcher.Constraint("Equal", 35, 39),
    Sketcher.Constraint("Equal", 38, 40),
    Sketcher.Constraint("Equal", 37, 41),
    Sketcher.Constraint("Equal", 40, 42),
    Sketcher.Constraint("Equal", 39, 43),
    Sketcher.Constraint("Equal", 42, 44),
    Sketcher.Constraint("Equal", 41, 45),
    Sketcher.Constraint("Equal", 44, 46),
    Sketcher.Constraint("Equal", 43, 47),
    Sketcher.Constraint("Equal", 46, 48),
    Sketcher.Constraint("Equal", 45, 49),
    Sketcher.Constraint("Equal", 48, 50),
    Sketcher.Constraint("Equal", 47, 51),
    Sketcher.Constraint("Equal", 50, 52),
    Sketcher.Constraint("Equal", 49, 53),
    Sketcher.Constraint("Equal", 52, 54),
    Sketcher.Constraint("Equal", 51, 55),
    Sketcher.Constraint("Equal", 54, 56),
    Sketcher.Constraint("Equal", 53, 57),
    Sketcher.Constraint("Equal", 56, 58),
    Sketcher.Constraint("Equal", 55, 59),
    Sketcher.Constraint("Equal", 58, 60),
    Sketcher.Constraint("Equal", 57, 61),
    Sketcher.Constraint("Equal", 60, 62),
    Sketcher.Constraint("Equal", 59, 63),
    Sketcher.Constraint("Equal", 62, 64),
    Sketcher.Constraint("Equal", 61, 65),
    Sketcher.Constraint("Equal", 64, 66),
    Sketcher.Constraint("Equal", 63, 67),
    Sketcher.Constraint("Equal", 66, 68),
    Sketcher.Constraint("Equal", 65, 69),
    Sketcher.Constraint("Equal", 68, 70),
    Sketcher.Constraint("Equal", 67, 71),
    Sketcher.Constraint("Equal", 70, 72),
    Sketcher.Constraint("Equal", 69, 73),
    Sketcher.Constraint("Equal", 72, 74),
    Sketcher.Constraint("Equal", 71, 75),
    Sketcher.Constraint("Equal", 74, 76),
    Sketcher.Constraint("Equal", 73, 77),
    Sketcher.Constraint("Equal", 76, 78),
    Sketcher.Constraint("Equal", 75, 79),
    Sketcher.Constraint("Symmetric", 0, 3, 40, 3, -1, 1),
    Sketcher.Constraint("Symmetric", 2, 3, 42, 3, -1, 1),
    Sketcher.Constraint("Symmetric", 4, 3, 44, 3, -1, 1),
    Sketcher.Constraint("Symmetric", 6, 3, 46, 3, -1, 1),
    Sketcher.Constraint("Symmetric", 8, 3, 48, 3, -1, 1),
    Sketcher.Constraint("Symmetric", 10, 3, 50, 3, -1, 1),
    Sketcher.Constraint("Symmetric", 12, 3, 52, 3, -1, 1),
    Sketcher.Constraint("Symmetric", 14, 3, 54, 3, -1, 1),
    Sketcher.Constraint("Symmetric", 16, 3, 56, 3, -1, 1),
    Sketcher.Constraint("Symmetric", 18, 3, 58, 3, -1, 1),
    Sketcher.Constraint("Symmetric", 20, 3, 60, 3, -1, 1),
    Sketcher.Constraint("Symmetric", 22, 3, 62, 3, -1, 1),
    Sketcher.Constraint("Symmetric", 24, 3, 64, 3, -1, 1),
    Sketcher.Constraint("Symmetric", 26, 3, 66, 3, -1, 1),
    Sketcher.Constraint("Symmetric", 28, 3, 68, 3, -1, 1),
    Sketcher.Constraint("Symmetric", 30, 3, 70, 3, -1, 1),
    Sketcher.Constraint("Symmetric", 32, 3, 72, 3, -1, 1),
    Sketcher.Constraint("Symmetric", 34, 3, 74, 3, -1, 1),
    Sketcher.Constraint("Symmetric", 36, 3, 76, 3, -1, 1),
    Sketcher.Constraint("Symmetric", 38, 3, 78, 3, -1, 1),
    Sketcher.Constraint("Symmetric", 38, 3, 40, 3, -2),
    Sketcher.Constraint("Symmetric", 36, 3, 42, 3, -2),
    Sketcher.Constraint("Symmetric", 34, 3, 44, 3, -2),
    Sketcher.Constraint("Symmetric", 32, 3, 46, 3, -2),
    Sketcher.Constraint("Symmetric", 30, 3, 48, 3, -2),
    Sketcher.Constraint("Symmetric", 28, 3, 50, 3, -2),
    Sketcher.Constraint("Symmetric", 26, 3, 52, 3, -2),
    Sketcher.Constraint("Symmetric", 24, 3, 54, 3, -2),
    Sketcher.Constraint("Symmetric", 22, 3, 56, 3, -2),
    Sketcher.Constraint("Symmetric", 20, 3, 58, 3, -2),
    Sketcher.Constraint("Radius", 0, 8.0),
    Sketcher.Constraint("Radius", 1, 22.0),
    Sketcher.Constraint("Radius", 3, 17.499),
    Sketcher.Constraint("DistanceX", -1, 1, 3, 1, 6.336799),
    Sketcher.Constraint("DistanceY", -1, 1, 14, 1, 6.336799),
    Sketcher.Constraint("DistanceY", -1, 1, 0, 3, 16.536031),
    Sketcher.Constraint("DistanceX", 2, 3, -1, 1, 3.384281),
    Sketcher.Constraint("DistanceY", -1, 1, 2, 3, 18.486631),
    Sketcher.Constraint("DistanceX", -1, 1, 4, 3, 13.60411),
    Sketcher.Constraint("DistanceX", -1, 1, 6, 3, 2.49404),
    Sketcher.Constraint("DistanceY", -1, 1, 6, 3, 18.627631),
    Sketcher.Constraint("DistanceX", -1, 1, 8, 3, 16.945229),
    Sketcher.Constraint("DistanceY", -1, 1, 8, 3, 8.128228),
    Sketcher.Constraint("DistanceX", -1, 1, 10, 3, 8.128228),
    Sketcher.Constraint("DistanceY", -1, 1, 10, 3, 16.945229),
    Sketcher.Constraint("DistanceX", -1, 1, 12, 3, 18.627631),
    Sketcher.Constraint("DistanceY", -1, 1, 12, 3, 2.49404),
    Sketcher.Constraint("DistanceX", -1, 1, 14, 3, 12.966768),
    Sketcher.Constraint("DistanceX", -1, 1, 16, 3, 18.486631),
    Sketcher.Constraint("DistanceY", 16, 3, -1, 1, 3.384281),
    Sketcher.Constraint("DistanceX", -1, 1, 18, 3, 16.536031),
    Sketcher.Constraint("DistanceX", -1, 1, 18, 1, 17.47119),
    Sketcher.Constraint("DistanceX", -1, 1, 38, 1, 0.986172),
])
sketch5.setExpression("Constraints[227]", "Params.sketch5_radius")
sketch5.setExpression("Constraints[228]", "Params.sketch5_radius2")
pocket4 = doc.addObject("PartDesign::Pocket", "Pocket003")
body.addObject(pocket4)
pocket4.Profile = sketch5
pocket4.setExpression("Length", "Params.pocket4_length")
pocket4.Reversed = True

# Sketch on YZ plane
sketch6 = doc.addObject("Sketcher::SketchObject", "Sketch005")
body.addObject(sketch6)
sketch6.AttachmentSupport = (doc.YZ_Plane, [""])
sketch6.MapMode = "FlatFace"
sketch6.AttachmentOffset = App.Placement(V(0, 0, 8), App.Rotation())
sketch6.addGeometry(Part.Circle(V(0, 0, 0), V(0, 0, 1), 11), False)
sketch6.addConstraint([
    Sketcher.Constraint("Coincident", 0, 3, -1, 1),
    Sketcher.Constraint("Diameter", 0, 22.2),
])
sketch6.setExpression("Constraints[1]", "Params.sketch6_diameter")
pad1 = doc.addObject("PartDesign::Pad", "Pad")
body.addObject(pad1)
pad1.Profile = sketch6
pad1.setExpression("Length", "Params.pad1_length")

# Sketch on YZ plane
sketch7 = doc.addObject("Sketcher::SketchObject", "Sketch006")
body.addObject(sketch7)
sketch7.AttachmentSupport = (doc.YZ_Plane, [""])
sketch7.MapMode = "FlatFace"
sketch7.AttachmentOffset = App.Placement(V(0, 0, 8), App.Rotation())
add_polygon(sketch7, [(3, -22), (-3, 22), (20, 25), (27, -18)])  # lines 0-3
sketch7.addConstraint([
    Sketcher.Constraint("Symmetric", 0, 2, 3, 2, -1, 1),
    Sketcher.Constraint("Perpendicular", 0, 1),
    Sketcher.Constraint("Perpendicular", 1, 2),
    Sketcher.Constraint("Perpendicular", 2, 3),
    Sketcher.Constraint("Angle", 0, Q("99 deg")),
    Sketcher.Constraint("Distance", 0, 44.0),
    Sketcher.Constraint("DistanceX", -1, 1, 2, 2, 27.11358),
])
sketch7.setExpression("Constraints[9]", "Params.sketch7_length")
pocket5 = doc.addObject("PartDesign::Pocket", "Pocket004")
body.addObject(pocket5)
pocket5.Profile = sketch7
pocket5.setExpression("Length", "Params.pocket5_length")
pocket5.Reversed = True

# Sketch on YZ plane
sketch8 = doc.addObject("Sketcher::SketchObject", "Sketch007")
body.addObject(sketch8)
sketch8.AttachmentSupport = (doc.YZ_Plane, [""])
sketch8.MapMode = "FlatFace"
sketch8.AttachmentOffset = App.Placement(V(0, 0, 8), App.Rotation())
sketch8.addGeometry(Part.Circle(V(0, 0, 0), V(0, 0, 1), 17), False)
sketch8.addConstraint([
    Sketcher.Constraint("Coincident", 0, 3, -1, 1),
    Sketcher.Constraint("Diameter", 0, 34.998),
])
pad2 = doc.addObject("PartDesign::Pad", "Pad001")
body.addObject(pad2)
pad2.Profile = sketch8
pad2.setExpression("Length", "Params.pad2_length")

doc.recompute()
